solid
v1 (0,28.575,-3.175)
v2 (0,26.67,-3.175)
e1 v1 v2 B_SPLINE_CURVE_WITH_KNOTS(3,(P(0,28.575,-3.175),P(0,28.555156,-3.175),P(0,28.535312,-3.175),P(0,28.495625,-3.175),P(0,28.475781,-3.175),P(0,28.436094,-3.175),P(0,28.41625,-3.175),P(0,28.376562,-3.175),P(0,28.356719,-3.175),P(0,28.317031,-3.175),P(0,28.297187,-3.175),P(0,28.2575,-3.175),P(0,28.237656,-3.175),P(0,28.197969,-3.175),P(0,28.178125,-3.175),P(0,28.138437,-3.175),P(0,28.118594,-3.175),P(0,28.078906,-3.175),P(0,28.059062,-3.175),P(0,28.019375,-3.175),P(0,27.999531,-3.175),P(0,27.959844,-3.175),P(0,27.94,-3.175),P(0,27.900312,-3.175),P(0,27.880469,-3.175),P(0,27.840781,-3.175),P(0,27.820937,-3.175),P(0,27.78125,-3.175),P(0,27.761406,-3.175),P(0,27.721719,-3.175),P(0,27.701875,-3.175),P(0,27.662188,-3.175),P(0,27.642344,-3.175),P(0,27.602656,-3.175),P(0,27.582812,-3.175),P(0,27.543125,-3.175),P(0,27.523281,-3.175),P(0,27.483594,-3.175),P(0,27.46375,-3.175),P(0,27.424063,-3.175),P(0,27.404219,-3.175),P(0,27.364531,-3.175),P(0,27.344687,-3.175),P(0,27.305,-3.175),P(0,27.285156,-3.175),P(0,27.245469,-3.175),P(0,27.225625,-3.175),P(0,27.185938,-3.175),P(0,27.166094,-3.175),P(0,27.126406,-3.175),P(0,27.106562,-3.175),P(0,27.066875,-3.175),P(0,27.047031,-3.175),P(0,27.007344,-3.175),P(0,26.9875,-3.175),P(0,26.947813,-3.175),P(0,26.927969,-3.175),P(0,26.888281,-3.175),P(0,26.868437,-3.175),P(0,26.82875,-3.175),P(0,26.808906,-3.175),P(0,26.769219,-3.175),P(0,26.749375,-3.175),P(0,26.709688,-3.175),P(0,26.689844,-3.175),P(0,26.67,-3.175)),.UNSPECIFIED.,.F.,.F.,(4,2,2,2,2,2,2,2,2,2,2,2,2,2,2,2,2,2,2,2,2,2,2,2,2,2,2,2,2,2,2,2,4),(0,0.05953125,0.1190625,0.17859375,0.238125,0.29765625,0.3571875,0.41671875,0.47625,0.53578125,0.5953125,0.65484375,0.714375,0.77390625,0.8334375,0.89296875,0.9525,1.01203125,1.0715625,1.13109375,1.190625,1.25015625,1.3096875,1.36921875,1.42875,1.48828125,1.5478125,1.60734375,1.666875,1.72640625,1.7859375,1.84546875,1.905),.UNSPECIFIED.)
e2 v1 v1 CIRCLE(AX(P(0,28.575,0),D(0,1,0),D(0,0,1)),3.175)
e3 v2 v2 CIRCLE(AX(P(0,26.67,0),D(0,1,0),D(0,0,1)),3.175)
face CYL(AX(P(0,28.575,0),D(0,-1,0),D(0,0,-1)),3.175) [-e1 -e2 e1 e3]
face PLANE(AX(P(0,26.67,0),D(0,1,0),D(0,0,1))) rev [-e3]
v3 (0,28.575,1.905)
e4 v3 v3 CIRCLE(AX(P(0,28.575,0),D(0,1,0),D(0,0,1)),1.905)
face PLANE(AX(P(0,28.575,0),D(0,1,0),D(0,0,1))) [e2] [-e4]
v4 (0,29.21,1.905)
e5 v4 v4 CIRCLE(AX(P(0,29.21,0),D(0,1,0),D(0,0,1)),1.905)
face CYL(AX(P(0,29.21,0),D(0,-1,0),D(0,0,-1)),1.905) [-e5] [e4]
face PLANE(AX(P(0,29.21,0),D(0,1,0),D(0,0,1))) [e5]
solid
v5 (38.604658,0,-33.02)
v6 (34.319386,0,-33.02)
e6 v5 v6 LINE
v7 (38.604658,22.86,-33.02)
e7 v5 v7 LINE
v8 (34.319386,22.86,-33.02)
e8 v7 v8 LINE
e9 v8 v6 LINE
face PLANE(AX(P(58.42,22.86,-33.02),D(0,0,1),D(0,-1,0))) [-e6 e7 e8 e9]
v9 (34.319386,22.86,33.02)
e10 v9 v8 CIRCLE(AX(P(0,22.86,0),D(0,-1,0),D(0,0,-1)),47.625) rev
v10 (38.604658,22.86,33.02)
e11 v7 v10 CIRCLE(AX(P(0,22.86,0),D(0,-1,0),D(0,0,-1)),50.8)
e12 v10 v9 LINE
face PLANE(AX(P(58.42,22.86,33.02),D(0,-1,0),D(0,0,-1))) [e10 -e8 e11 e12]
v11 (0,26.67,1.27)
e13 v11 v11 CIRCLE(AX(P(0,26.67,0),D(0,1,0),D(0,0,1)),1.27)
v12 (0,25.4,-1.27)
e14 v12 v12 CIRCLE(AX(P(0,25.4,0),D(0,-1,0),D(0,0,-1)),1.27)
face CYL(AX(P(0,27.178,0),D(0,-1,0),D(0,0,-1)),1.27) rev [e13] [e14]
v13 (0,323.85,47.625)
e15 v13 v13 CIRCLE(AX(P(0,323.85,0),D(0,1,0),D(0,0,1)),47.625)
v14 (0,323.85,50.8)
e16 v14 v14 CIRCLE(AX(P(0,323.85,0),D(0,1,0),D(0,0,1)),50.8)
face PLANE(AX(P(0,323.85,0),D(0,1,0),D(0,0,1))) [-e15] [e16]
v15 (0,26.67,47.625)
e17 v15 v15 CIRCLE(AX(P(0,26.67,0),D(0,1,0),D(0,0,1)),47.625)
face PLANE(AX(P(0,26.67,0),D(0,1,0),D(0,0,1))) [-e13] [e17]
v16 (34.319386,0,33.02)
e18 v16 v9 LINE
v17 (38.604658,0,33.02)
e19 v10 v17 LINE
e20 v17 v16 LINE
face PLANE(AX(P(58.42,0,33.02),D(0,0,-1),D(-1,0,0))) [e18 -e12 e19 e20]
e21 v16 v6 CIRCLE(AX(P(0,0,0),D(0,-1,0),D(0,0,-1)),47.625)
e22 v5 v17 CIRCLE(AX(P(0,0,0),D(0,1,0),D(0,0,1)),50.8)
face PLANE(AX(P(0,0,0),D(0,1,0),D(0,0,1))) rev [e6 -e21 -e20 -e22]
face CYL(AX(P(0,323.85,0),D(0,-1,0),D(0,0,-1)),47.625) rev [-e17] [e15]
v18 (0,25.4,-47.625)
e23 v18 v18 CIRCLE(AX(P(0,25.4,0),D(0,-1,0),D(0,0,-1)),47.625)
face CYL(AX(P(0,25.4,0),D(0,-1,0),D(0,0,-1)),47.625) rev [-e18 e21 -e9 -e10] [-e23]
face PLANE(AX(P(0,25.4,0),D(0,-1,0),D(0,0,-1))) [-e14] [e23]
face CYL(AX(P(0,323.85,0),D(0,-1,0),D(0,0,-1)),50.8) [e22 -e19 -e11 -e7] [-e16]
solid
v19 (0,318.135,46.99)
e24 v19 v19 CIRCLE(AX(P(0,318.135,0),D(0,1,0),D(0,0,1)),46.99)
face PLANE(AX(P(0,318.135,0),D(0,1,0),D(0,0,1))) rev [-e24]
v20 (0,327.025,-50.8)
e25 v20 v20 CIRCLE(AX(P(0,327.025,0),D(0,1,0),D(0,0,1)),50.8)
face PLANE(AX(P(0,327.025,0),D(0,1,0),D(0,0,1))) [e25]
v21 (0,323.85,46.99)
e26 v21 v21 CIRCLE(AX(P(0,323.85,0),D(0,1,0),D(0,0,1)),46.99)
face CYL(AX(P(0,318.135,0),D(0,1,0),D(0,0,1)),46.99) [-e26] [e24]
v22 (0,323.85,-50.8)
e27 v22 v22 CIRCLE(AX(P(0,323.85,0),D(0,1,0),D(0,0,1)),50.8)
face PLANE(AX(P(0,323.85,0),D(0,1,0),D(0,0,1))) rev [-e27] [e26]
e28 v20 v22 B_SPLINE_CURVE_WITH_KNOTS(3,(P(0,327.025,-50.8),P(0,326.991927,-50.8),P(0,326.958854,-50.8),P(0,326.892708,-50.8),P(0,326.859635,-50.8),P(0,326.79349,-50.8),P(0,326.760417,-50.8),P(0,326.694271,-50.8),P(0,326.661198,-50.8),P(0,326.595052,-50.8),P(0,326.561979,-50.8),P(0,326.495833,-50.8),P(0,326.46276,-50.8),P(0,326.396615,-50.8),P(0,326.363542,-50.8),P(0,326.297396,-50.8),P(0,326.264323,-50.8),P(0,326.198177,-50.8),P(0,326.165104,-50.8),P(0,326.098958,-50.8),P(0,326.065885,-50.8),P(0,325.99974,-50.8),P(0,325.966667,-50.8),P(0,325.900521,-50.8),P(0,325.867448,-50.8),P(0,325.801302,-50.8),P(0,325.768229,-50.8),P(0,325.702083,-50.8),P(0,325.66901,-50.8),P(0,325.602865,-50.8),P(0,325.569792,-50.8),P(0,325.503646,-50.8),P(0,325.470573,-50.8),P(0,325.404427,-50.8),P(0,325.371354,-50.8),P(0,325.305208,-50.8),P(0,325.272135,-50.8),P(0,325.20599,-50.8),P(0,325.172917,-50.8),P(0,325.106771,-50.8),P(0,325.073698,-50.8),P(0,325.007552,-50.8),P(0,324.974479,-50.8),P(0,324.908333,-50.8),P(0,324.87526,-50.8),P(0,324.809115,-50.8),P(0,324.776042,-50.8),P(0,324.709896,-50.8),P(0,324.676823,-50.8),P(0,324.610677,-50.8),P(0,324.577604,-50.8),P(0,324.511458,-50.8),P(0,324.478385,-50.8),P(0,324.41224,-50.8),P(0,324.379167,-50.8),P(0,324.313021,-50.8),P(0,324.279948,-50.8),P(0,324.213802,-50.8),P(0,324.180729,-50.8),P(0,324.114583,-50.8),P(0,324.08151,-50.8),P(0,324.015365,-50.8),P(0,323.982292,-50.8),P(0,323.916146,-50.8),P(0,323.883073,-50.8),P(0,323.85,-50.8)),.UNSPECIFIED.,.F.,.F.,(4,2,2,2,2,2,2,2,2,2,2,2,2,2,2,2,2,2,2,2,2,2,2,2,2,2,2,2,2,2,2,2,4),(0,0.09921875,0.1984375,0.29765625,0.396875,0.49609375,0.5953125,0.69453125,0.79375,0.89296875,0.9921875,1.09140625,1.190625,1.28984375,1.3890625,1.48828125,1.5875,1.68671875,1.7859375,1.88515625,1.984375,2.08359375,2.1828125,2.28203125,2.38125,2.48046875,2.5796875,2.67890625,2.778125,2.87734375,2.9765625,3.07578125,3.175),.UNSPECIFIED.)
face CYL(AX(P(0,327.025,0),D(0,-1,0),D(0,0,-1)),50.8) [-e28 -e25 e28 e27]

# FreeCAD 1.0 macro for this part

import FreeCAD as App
import Part
import Sketcher

V = App.Vector
Q = App.Units.Quantity

doc = App.newDocument("Part")
body = doc.addObject("PartDesign::Body", "Body")

# Sketch on XZ plane
sketch1 = doc.addObject("Sketcher::SketchObject", "Sketch")
body.addObject(sketch1)
sketch1.AttachmentSupport = (doc.XZ_Plane, [""])
sketch1.MapMode = "FlatFace"
sketch1.addGeometry(Part.Circle(V(0, 0, 0), V(0, 0, 1), 51), False)
sketch1.addConstraint([
    Sketcher.Constraint("Coincident", 0, 3, -1, 1),
    Sketcher.Constraint("Diameter", 0, Q("4 in")),
])
pad1 = doc.addObject("PartDesign::Pad", "Pad")
body.addObject(pad1)
pad1.Profile = sketch1
pad1.Length = Q("12.75 in")
pad1.Reversed = True

# Sketch on XZ plane
sketch2 = doc.addObject("Sketcher::SketchObject", "Sketch001")
body.addObject(sketch2)
sketch2.AttachmentSupport = (doc.XZ_Plane, [""])
sketch2.MapMode = "FlatFace"
sketch2.addGeometry(Part.Circle(V(0, 0, 0), V(0, 0, 1), 48), False)
sketch2.addConstraint([
    Sketcher.Constraint("Coincident", 0, 3, -1, 1),
    Sketcher.Constraint("Diameter", 0, Q("3.75 in")),
])
pocket1 = doc.addObject("PartDesign::Pocket", "Pocket")
body.addObject(pocket1)
pocket1.Profile = sketch2
pocket1.Length = Q("1 in")

# Sketch on YZ plane
sketch3 = doc.addObject("Sketcher::SketchObject", "Sketch002")
body.addObject(sketch3)
sketch3.AttachmentSupport = (doc.YZ_Plane, [""])
sketch3.MapMode = "FlatFace"
sketch3.addGeometry([
    Part.LineSegment(V(23, 33, 0), V(0, 33, 0)),
    Part.LineSegment(V(0, 33, 0), V(0, -33, 0)),
    Part.LineSegment(V(0, -33, 0), V(23, -33, 0)),
    Part.LineSegment(V(23, -33, 0), V(23, 33, 0)),
], False)
sketch3.addConstraint([
    Sketcher.Constraint("Coincident", 0, 2, 1, 1),
    Sketcher.Constraint("Coincident", 1, 2, 2, 1),
    Sketcher.Constraint("Coincident", 2, 2, 3, 1),
    Sketcher.Constraint("Coincident", 3, 2, 0, 1),
    Sketcher.Constraint("Horizontal", 0),
    Sketcher.Constraint("Vertical", 1),
    Sketcher.Constraint("Horizontal", 2),
    Sketcher.Constraint("Vertical", 3),
    Sketcher.Constraint("Symmetric", 0, 2, 1, 2, -1, 1),
    Sketcher.Constraint("DistanceX", 0, 2, 0, 1, Q("0.9 in")),
    Sketcher.Constraint("DistanceY", 1, 2, 1, 1, Q("2.6 in")),
])
pocket2 = doc.addObject("PartDesign::Pocket", "Pocket001")
body.addObject(pocket2)
pocket2.Profile = sketch3
pocket2.Length = Q("2.3 in")
pocket2.Reversed = True

# Sketch on XZ plane
sketch4 = doc.addObject("Sketcher::SketchObject", "Sketch003")
body.addObject(sketch4)
sketch4.AttachmentSupport = (doc.XZ_Plane, [""])
sketch4.MapMode = "FlatFace"
sketch4.AttachmentOffset = App.Placement(V(0, 0, -1.05 * 25.4), App.Rotation())
sketch4.addGeometry(Part.Circle(V(0, 0, 0), V(0, 0, 1), 48), False)
sketch4.addConstraint([
    Sketcher.Constraint("Coincident", 0, 3, -1, 1),
    Sketcher.Constraint("Diameter", 0, Q("3.75 in")),
])
pocket3 = doc.addObject("PartDesign::Pocket", "Pocket002")
body.addObject(pocket3)
pocket3.Profile = sketch4
pocket3.Type = "ThroughAll"

# Sketch on XZ plane
sketch5 = doc.addObject("Sketcher::SketchObject", "Sketch004")
body.addObject(sketch5)
sketch5.AttachmentSupport = (doc.XZ_Plane, [""])
sketch5.MapMode = "FlatFace"
sketch5.AttachmentOffset = App.Placement(V(0, 0, -1 * 25.4), App.Rotation())
sketch5.addGeometry(Part.Circle(V(0, 0, 0), V(0, 0, 1), 1.3), False)
sketch5.addConstraint([
    Sketcher.Constraint("Coincident", 0, 3, -1, 1),
    Sketcher.Constraint("Diameter", 0, Q("0.1 in")),
])
pocket4 = doc.addObject("PartDesign::Pocket", "Pocket003")
body.addObject(pocket4)
pocket4.Profile = sketch5
pocket4.Length = Q("0.07 in")
body2 = doc.addObject("PartDesign::Body", "Body001")

# Sketch on XZ plane
sketch6 = doc.addObject("Sketcher::SketchObject", "Sketch005")
body2.addObject(sketch6)
sketch6.AttachmentSupport = (doc.getObject("XZ_Plane001"), [""])
sketch6.MapMode = "FlatFace"
sketch6.AttachmentOffset = App.Placement(V(0, 0, -1.05 * 25.4), App.Rotation())
sketch6.addGeometry(Part.Circle(V(0, 0, 0), V(0, 0, 1), 3.2), False)
sketch6.addConstraint([
    Sketcher.Constraint("Coincident", 0, 3, -1, 1),
    Sketcher.Constraint("Diameter", 0, Q("0.25 in")),
])
pad2 = doc.addObject("PartDesign::Pad", "Pad001")
body2.addObject(pad2)
pad2.Profile = sketch6
pad2.Length = Q("0.075 in")
pad2.Reversed = True
body3 = doc.addObject("PartDesign::Body", "Body002")

# Sketch on XZ plane
sketch7 = doc.addObject("Sketcher::SketchObject", "Sketch006")
body3.addObject(sketch7)
sketch7.AttachmentSupport = (doc.getObject("XZ_Plane002"), [""])
sketch7.MapMode = "FlatFace"
sketch7.AttachmentOffset = App.Placement(V(0, 0, -1.125 * 25.4), App.Rotation())
sketch7.addGeometry(Part.Circle(V(0, 0, 0), V(0, 0, 1), 1.9), False)
sketch7.addConstraint([
    Sketcher.Constraint("Coincident", 0, 3, -1, 1),
    Sketcher.Constraint("Diameter", 0, Q("0.15 in")),
])
pad3 = doc.addObject("PartDesign::Pad", "Pad002")
body3.addObject(pad3)
pad3.Profile = sketch7
pad3.Length = Q("0.025 in")
pad3.Reversed = True
body4 = doc.addObject("PartDesign::Body", "Body003")

# Sketch on XZ plane
sketch8 = doc.addObject("Sketcher::SketchObject", "Sketch007")
body4.addObject(sketch8)
sketch8.AttachmentSupport = (doc.getObject("XZ_Plane003"), [""])
sketch8.MapMode = "FlatFace"
sketch8.AttachmentOffset = App.Placement(V(0, 0, -12.75 * 25.4), App.Rotation())
sketch8.addGeometry(Part.Circle(V(0, 0, 0), V(0, 0, 1), 47), False)
sketch8.addConstraint([
    Sketcher.Constraint("Coincident", 0, 3, -1, 1),
    Sketcher.Constraint("Diameter", 0, Q("3.7 in")),
])
pad4 = doc.addObject("PartDesign::Pad", "Pad003")
body4.addObject(pad4)
pad4.Profile = sketch8
pad4.Length = Q("0.225 in")
body5 = doc.addObject("PartDesign::Body", "Body004")

# Sketch on XZ plane
sketch9 = doc.addObject("Sketcher::SketchObject", "Sketch008")
body5.addObject(sketch9)
sketch9.AttachmentSupport = (doc.getObject("XZ_Plane004"), [""])
sketch9.MapMode = "FlatFace"
sketch9.AttachmentOffset = App.Placement(V(0, 0, -12.75 * 25.4), App.Rotation())
sketch9.addGeometry(Part.Circle(V(0, 0, 0), V(0, 0, 1), 51), False)
sketch9.addConstraint([
    Sketcher.Constraint("Coincident", 0, 3, -1, 1),
    Sketcher.Constraint("Diameter", 0, Q("4 in")),
])
pad5 = doc.addObject("PartDesign::Pad", "Pad004")
body5.addObject(pad5)
pad5.Profile = sketch9
pad5.Length = Q("0.125 in")
pad5.Reversed = True
doc.recompute()

boolean = doc.addObject("PartDesign::Boolean", "Boolean")
body4.addObject(boolean)
boolean.Type = "Fuse"
boolean.addObjects([body5])
doc.recompute()

boolean2 = doc.addObject("PartDesign::Boolean", "Boolean001")
body2.addObject(boolean2)
boolean2.Type = "Fuse"
boolean2.addObjects([body3])

doc.recompute()
